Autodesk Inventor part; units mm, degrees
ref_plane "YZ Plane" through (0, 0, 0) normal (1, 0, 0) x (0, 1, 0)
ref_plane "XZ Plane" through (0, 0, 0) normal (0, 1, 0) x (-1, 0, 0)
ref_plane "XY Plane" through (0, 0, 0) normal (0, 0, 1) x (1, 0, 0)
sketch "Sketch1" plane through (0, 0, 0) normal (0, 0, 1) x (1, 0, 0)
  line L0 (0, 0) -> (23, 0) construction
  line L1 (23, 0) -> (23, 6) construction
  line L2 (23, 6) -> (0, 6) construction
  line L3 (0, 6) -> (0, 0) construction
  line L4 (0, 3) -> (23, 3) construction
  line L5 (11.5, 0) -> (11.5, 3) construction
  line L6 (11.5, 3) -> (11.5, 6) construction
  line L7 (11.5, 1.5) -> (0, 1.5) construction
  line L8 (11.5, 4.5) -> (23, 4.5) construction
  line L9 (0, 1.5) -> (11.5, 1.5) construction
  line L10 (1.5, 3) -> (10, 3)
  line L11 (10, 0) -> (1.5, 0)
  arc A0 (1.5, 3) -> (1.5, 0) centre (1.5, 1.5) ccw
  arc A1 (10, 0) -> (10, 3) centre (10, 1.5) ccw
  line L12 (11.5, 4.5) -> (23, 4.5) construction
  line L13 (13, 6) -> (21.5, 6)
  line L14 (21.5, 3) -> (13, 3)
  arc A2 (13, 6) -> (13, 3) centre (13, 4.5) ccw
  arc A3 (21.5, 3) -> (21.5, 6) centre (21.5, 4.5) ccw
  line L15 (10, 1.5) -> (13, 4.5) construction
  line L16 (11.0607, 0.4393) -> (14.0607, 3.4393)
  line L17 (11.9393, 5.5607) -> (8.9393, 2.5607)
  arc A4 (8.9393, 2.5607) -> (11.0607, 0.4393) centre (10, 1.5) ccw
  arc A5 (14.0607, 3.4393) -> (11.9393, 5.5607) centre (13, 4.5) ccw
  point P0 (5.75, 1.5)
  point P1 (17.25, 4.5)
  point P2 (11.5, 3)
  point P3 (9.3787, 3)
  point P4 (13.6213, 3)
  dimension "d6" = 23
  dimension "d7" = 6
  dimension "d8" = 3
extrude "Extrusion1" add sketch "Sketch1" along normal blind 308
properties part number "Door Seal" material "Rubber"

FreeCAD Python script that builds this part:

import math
import FreeCAD as App
import Part
import Sketcher
Q = App.Units.Quantity

doc = App.newDocument("Part")
body = doc.addObject("PartDesign::Body", "Body")

# Sketch on XY plane
sketch1 = body.newObject("Sketcher::SketchObject", "Sketch")
sketch1.AttachmentSupport = (doc.getObject("XY_Plane"), [""])
sketch1.MapMode = "FlatFace"
sketch1.addGeometry(Part.LineSegment(App.Vector(9.4, 3, 0), App.Vector(1.5, 3, 0)), False)
sketch1.addGeometry(Part.ArcOfCircle(Part.Circle(App.Vector(1.5, 1.5, 0), App.Vector(0, 0, 1), 1.5), math.radians(90), math.radians(270)), False)
sketch1.addGeometry(Part.LineSegment(App.Vector(1.5, 0, 0), App.Vector(10, 0, 0)), False)
sketch1.addGeometry(Part.ArcOfCircle(Part.Circle(App.Vector(10, 1.5, 0), App.Vector(0, 0, 1), 1.5), math.radians(-90), math.radians(-45)), False)
sketch1.addGeometry(Part.LineSegment(App.Vector(11.1, 0.4, 0), App.Vector(13.6, 3, 0)), False)
sketch1.addGeometry(Part.LineSegment(App.Vector(13.6, 3, 0), App.Vector(21.5, 3, 0)), False)
sketch1.addGeometry(Part.ArcOfCircle(Part.Circle(App.Vector(21.5, 4.5, 0), App.Vector(0, 0, 1), 1.5), math.radians(-90), math.radians(90)), False)
sketch1.addGeometry(Part.LineSegment(App.Vector(21.5, 6, 0), App.Vector(13, 6, 0)), False)
sketch1.addGeometry(Part.ArcOfCircle(Part.Circle(App.Vector(13, 4.5, 0), App.Vector(0, 0, 1), 1.5), math.radians(90), math.radians(135)), False)
sketch1.addGeometry(Part.LineSegment(App.Vector(11.9, 5.6, 0), App.Vector(9.4, 3, 0)), False)
sketch1.addConstraint(Sketcher.Constraint("Tangent", 0, 2, 1, 1))
sketch1.addConstraint(Sketcher.Constraint("Tangent", 1, 2, 2, 1))
sketch1.addConstraint(Sketcher.Constraint("Tangent", 2, 2, 3, 1))
sketch1.addConstraint(Sketcher.Constraint("Tangent", 3, 2, 4, 1))
sketch1.addConstraint(Sketcher.Constraint("Coincident", 4, 2, 5, 1))
sketch1.addConstraint(Sketcher.Constraint("Tangent", 5, 2, 6, 1))
sketch1.addConstraint(Sketcher.Constraint("Tangent", 6, 2, 7, 1))
sketch1.addConstraint(Sketcher.Constraint("Tangent", 7, 2, 8, 1))
sketch1.addConstraint(Sketcher.Constraint("Tangent", 8, 2, 9, 1))
sketch1.addConstraint(Sketcher.Constraint("Coincident", 9, 2, 0, 1))
sketch1.addConstraint(Sketcher.Constraint("Horizontal", 0))
sketch1.addConstraint(Sketcher.Constraint("Horizontal", 2))
sketch1.addConstraint(Sketcher.Constraint("Horizontal", 5))
sketch1.addConstraint(Sketcher.Constraint("Horizontal", 7))
sketch1.addConstraint(Sketcher.Constraint("Equal", 1, 3))
sketch1.addConstraint(Sketcher.Constraint("Equal", 3, 6))
sketch1.addConstraint(Sketcher.Constraint("Equal", 6, 8))
sketch1.addConstraint(Sketcher.Constraint("PointOnObject", 1, 2, -1))
sketch1.addConstraint(Sketcher.Constraint("Parallel", 4, 9))
sketch1.addConstraint(Sketcher.Constraint("Horizontal", 0, 2, 4, 2))
sketch1.addConstraint(Sketcher.Constraint("Equal", 0, 5))
sketch1.addConstraint(Sketcher.Constraint("Radius", 1, Q("1.5 mm")))
sketch1.addConstraint(Sketcher.Constraint("DistanceX", 3, 3, 8, 3, Q("3 mm")))
sketch1.addConstraint(Sketcher.Constraint("Angle", 4, Q("45 deg")))
sketch1.addConstraint(Sketcher.Constraint("DistanceX", 2, 1, 2, 2, Q("8.5 mm")))
sketch1.addConstraint(Sketcher.Constraint("DistanceX", -1, 1, 3, 3, Q("10 mm")))
pad1 = body.newObject("PartDesign::Pad", "Pad")
pad1.Profile = sketch1
pad1.Length = 308

doc.recompute()
